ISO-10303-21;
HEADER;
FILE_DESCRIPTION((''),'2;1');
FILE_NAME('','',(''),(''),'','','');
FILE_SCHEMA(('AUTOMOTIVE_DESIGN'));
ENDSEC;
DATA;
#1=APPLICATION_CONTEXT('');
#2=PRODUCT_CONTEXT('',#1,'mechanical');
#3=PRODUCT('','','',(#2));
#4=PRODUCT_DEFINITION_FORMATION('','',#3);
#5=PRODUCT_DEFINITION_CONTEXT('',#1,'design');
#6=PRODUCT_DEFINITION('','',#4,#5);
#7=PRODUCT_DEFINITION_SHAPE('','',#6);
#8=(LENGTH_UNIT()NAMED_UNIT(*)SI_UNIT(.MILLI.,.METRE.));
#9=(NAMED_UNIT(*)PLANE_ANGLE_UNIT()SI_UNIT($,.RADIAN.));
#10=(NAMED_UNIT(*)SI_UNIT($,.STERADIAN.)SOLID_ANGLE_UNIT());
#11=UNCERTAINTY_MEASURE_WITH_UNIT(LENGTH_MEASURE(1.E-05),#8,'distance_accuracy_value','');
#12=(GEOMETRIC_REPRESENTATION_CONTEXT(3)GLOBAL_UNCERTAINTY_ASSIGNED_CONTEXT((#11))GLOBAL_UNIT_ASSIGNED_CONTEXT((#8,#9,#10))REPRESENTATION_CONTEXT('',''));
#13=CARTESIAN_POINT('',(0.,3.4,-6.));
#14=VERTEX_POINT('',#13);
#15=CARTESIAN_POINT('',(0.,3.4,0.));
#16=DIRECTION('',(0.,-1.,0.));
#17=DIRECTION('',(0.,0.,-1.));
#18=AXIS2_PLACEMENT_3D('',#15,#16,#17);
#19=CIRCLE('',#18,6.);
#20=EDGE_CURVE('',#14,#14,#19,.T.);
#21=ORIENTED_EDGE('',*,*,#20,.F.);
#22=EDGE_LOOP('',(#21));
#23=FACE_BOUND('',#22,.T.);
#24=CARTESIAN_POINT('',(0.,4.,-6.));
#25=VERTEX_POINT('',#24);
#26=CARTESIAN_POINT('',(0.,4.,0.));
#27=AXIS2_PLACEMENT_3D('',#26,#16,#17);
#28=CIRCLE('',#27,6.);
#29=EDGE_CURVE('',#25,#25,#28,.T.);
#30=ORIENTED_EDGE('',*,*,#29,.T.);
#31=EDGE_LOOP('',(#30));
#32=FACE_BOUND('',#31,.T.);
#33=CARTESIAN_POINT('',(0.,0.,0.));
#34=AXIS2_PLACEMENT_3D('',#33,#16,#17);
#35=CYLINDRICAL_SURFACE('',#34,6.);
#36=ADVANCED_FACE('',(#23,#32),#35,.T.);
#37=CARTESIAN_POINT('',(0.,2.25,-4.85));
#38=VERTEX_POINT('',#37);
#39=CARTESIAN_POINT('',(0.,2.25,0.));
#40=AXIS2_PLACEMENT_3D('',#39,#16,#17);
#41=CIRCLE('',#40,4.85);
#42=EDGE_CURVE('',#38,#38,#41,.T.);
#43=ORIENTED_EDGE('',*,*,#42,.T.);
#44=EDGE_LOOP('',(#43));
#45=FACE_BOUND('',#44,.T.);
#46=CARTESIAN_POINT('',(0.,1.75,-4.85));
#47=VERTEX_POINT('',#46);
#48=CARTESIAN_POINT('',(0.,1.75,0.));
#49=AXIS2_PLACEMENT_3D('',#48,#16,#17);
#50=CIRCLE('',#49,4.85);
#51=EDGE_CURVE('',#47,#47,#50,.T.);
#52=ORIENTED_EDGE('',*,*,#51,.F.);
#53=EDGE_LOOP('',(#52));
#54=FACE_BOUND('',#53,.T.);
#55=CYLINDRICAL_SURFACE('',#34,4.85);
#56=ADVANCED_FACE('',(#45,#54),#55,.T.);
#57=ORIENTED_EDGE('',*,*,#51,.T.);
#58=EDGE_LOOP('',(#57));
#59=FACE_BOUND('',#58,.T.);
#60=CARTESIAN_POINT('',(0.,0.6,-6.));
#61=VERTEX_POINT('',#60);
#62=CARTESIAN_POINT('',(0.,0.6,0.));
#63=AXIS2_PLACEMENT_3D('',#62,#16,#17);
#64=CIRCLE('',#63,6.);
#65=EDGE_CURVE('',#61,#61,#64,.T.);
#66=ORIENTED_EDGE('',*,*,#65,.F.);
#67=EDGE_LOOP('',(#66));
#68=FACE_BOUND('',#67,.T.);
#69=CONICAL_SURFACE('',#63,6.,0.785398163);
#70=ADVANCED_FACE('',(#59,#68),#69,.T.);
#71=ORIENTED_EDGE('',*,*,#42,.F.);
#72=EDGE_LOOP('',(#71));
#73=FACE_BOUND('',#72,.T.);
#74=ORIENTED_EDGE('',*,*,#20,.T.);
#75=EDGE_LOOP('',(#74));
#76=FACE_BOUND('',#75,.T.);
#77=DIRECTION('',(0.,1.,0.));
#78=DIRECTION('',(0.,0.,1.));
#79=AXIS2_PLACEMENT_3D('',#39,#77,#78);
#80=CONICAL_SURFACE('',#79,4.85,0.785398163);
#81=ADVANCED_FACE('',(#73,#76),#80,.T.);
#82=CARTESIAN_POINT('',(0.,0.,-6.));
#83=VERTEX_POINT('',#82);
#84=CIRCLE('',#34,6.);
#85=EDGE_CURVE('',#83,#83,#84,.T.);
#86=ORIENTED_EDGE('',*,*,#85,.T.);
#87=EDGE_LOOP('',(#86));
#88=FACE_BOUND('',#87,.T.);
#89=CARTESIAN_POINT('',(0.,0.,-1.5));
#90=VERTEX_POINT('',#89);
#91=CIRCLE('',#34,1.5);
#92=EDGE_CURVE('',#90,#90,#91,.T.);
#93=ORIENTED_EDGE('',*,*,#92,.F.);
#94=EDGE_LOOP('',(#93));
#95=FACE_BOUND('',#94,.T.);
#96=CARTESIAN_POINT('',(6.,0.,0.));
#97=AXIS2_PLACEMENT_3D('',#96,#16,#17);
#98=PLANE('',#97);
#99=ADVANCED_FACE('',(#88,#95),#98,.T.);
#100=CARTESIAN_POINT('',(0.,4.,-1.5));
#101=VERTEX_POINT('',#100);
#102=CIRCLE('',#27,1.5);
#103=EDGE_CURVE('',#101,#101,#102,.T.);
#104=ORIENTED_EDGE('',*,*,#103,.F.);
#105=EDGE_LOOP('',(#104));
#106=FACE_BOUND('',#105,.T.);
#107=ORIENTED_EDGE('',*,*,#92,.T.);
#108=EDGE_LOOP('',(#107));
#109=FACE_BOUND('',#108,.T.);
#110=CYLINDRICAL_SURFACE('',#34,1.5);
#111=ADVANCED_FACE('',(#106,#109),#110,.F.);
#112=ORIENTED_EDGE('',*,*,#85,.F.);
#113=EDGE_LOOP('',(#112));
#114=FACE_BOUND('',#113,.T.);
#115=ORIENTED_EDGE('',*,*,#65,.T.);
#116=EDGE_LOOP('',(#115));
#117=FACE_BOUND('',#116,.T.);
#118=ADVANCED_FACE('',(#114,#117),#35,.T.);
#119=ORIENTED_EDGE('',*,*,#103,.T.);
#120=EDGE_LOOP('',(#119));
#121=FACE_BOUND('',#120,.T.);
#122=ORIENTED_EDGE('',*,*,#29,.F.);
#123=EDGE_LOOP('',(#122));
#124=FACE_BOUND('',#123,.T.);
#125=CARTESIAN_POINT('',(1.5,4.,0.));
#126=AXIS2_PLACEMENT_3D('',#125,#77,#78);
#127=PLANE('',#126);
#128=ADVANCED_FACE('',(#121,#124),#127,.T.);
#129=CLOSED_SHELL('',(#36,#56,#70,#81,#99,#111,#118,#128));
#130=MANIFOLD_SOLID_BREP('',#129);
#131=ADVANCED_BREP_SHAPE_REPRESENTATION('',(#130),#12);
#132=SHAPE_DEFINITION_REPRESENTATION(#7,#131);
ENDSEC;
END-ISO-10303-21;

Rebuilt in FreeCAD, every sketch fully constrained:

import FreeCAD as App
import Part
import Sketcher
from FreeCAD import Vector


def add_polygon(sketch, points):
    """Adds a closed chain of lines whose ends are joined by coincident constraints."""
    first, n = sketch.GeometryCount, len(points)
    for a, b in zip(points, points[1:] + points[:1]):
        sketch.addGeometry(Part.LineSegment(App.Vector(*a, 0), App.Vector(*b, 0)), False)
    for i in range(n):
        sketch.addConstraint(Sketcher.Constraint("Coincident", first + i, 2, first + (i + 1) % n, 1))

doc = App.newDocument("Part")
params = doc.addObject("Spreadsheet::Sheet", "Params")
for row, (alias, value) in enumerate([
    ("sketch1_height", "4 mm"),
    ("sketch1_width", "4.5 mm"),
    ("sketch1_height2", "0.6 mm"),
    ("sketch1_height3", "0.5 mm"),
    ("revolution_angle", "360 deg"),
], start=1):
    params.set(f"A{row}", alias)
    params.set(f"B{row}", "=" + value)
    params.setAlias(f"B{row}", alias)

body = doc.addObject("PartDesign::Body", "Body")

sketch1 = body.newObject("Sketcher::SketchObject", "Sketch")
sketch1.AttachmentSupport = (doc.getObject("XY_Plane"), [""])
sketch1.MapMode = "FlatFace"
add_polygon(sketch1, [(1.5, 4), (1.5, 0), (6, 0), (6, 0.6), (4.85, 1.75), (4.85, 2.25), (6, 3.4), (6, 4)])
sketch1.addConstraint([
    Sketcher.Constraint("Vertical", 0),
    Sketcher.Constraint("Horizontal", 1),
    Sketcher.Constraint("Vertical", 2),
    Sketcher.Constraint("Vertical", 4),
    Sketcher.Constraint("Vertical", 6),
    Sketcher.Constraint("Horizontal", 7),
    Sketcher.Constraint("PointOnObject", 0, 2, -1),
    Sketcher.Constraint("Perpendicular", 3, 5),
    Sketcher.Constraint("Vertical", 2, 2, 5, 2),
    Sketcher.Constraint("Equal", 2, 6),
    Sketcher.Constraint("Equal", 3, 5),
    Sketcher.Constraint("DistanceY", 0, 2, 0, 1, 4.0),
    Sketcher.Constraint("DistanceX", 1, 1, 1, 2, 4.5),
    Sketcher.Constraint("DistanceY", 2, 1, 2, 2, 0.6),
    Sketcher.Constraint("DistanceY", 4, 1, 4, 2, 0.5),
    Sketcher.Constraint("DistanceX", -1, 1, 1, 2, 6.0),
])
sketch1.setExpression("Constraints[19]", "Params.sketch1_height")
sketch1.setExpression("Constraints[20]", "Params.sketch1_width")
sketch1.setExpression("Constraints[21]", "Params.sketch1_height2")
sketch1.setExpression("Constraints[22]", "Params.sketch1_height3")
revolution = body.newObject("PartDesign::Revolution", "Revolution")
revolution.Profile = sketch1
revolution.ReferenceAxis = (sketch1, ["V_Axis"])
revolution.setExpression("Angle", "Params.revolution_angle")

doc.recompute()
